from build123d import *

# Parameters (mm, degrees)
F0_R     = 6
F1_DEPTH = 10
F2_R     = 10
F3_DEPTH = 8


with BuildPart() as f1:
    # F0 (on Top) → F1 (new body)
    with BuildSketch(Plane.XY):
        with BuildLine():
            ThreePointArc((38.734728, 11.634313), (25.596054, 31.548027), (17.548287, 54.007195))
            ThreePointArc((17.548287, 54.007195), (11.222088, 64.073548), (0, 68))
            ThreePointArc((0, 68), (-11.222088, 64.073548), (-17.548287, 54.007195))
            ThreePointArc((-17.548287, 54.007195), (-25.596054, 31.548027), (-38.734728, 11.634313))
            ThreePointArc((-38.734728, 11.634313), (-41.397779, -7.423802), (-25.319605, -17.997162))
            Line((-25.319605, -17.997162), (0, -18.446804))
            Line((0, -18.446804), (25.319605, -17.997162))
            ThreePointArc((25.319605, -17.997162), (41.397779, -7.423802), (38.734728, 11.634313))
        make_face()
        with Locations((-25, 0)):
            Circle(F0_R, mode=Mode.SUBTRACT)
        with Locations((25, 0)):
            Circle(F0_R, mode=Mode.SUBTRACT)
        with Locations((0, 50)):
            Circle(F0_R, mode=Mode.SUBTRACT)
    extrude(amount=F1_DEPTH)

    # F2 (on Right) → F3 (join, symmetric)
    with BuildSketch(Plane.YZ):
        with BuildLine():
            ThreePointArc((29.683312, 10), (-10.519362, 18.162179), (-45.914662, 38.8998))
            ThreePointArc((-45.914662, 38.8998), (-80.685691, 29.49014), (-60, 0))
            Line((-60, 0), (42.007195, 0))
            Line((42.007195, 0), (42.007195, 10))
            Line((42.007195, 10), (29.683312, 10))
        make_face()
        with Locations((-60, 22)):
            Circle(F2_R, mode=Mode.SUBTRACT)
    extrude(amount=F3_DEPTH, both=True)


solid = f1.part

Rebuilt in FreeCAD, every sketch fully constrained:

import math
import FreeCAD as App
import Part
import Sketcher

V = App.Vector
Q = App.Units.Quantity

doc = App.newDocument("Part")
body = doc.addObject("PartDesign::Body", "Body")

sketch1 = body.newObject("Sketcher::SketchObject", "Sketch")
sketch1.AttachmentSupport = (doc.getObject("XY_Plane"), [""])
sketch1.MapMode = "FlatFace"
sketch1.addGeometry(Part.ArcOfCircle(Part.Circle(V(115.03878, 76.26939, 0), V(0, 0, 1), 100.000007), math.radians(-167.136921), math.radians(-139.732976)), False)
sketch1.addGeometry(Part.ArcOfCircle(Part.Circle(V(0.000001, 50.000002, 0), V(0, 0, 1), 17.999998), math.radians(12.863074), math.radians(90.000004)), False)
sketch1.addGeometry(Part.ArcOfCircle(Part.Circle(V(-0.000001, 50.000002, 0), V(0, 0, 1), 17.999998), math.radians(89.999996), math.radians(167.136926)), False)
sketch1.addGeometry(Part.ArcOfCircle(Part.Circle(V(-115.03878, 76.26939, 0), V(0, 0, 1), 100.000007), math.radians(-40.267024), math.radians(-12.863079)), False)
sketch1.addGeometry(Part.ArcOfCircle(Part.Circle(V(-25, 0, 0), V(0, 0, 1), 18), math.radians(139.732975), math.radians(268.982613)), False)
sketch1.addGeometry(Part.LineSegment(V(-25.319605, -17.997162, 0), V(0, -18.446804, 0)), False)
sketch1.addGeometry(Part.LineSegment(V(0, -18.446804, 0), V(25.319605, -17.997162, 0)), False)
sketch1.addGeometry(Part.ArcOfCircle(Part.Circle(V(25, 0, 0), V(0, 0, 1), 18), math.radians(-88.982613), math.radians(40.267025)), False)
sketch1.addGeometry(Part.Circle(V(-25, 0, 0), V(0, 0, 1), 6), False)
sketch1.addGeometry(Part.Circle(V(25, 0, 0), V(0, 0, 1), 6), False)
sketch1.addGeometry(Part.Circle(V(0, 50, 0), V(0, 0, 1), 6), False)
sketch1.addConstraint(Sketcher.Constraint("Coincident", 0, 1, 1, 1))
sketch1.addConstraint(Sketcher.Constraint("Coincident", 1, 2, 2, 1))
sketch1.addConstraint(Sketcher.Constraint("Coincident", 2, 2, 3, 2))
sketch1.addConstraint(Sketcher.Constraint("Coincident", 3, 1, 4, 1))
sketch1.addConstraint(Sketcher.Constraint("Coincident", 4, 2, 5, 1))
sketch1.addConstraint(Sketcher.Constraint("Coincident", 5, 2, 6, 1))
sketch1.addConstraint(Sketcher.Constraint("Coincident", 6, 2, 7, 1))
sketch1.addConstraint(Sketcher.Constraint("Coincident", 7, 2, 0, 2))
sketch1.addConstraint(Sketcher.Constraint("Coincident", 2, 3, 1, 3))
sketch1.addConstraint(Sketcher.Constraint("Coincident", 8, 3, 4, 3))
sketch1.addConstraint(Sketcher.Constraint("Coincident", 9, 3, 7, 3))
sketch1.addConstraint(Sketcher.Constraint("Coincident", 10, 3, 1, 3))
sketch1.addConstraint(Sketcher.Constraint("PointOnObject", 1, 3, -2))
sketch1.addConstraint(Sketcher.Constraint("PointOnObject", 4, 3, -1))
sketch1.addConstraint(Sketcher.Constraint("PointOnObject", 7, 3, -1))
sketch1.addConstraint(Sketcher.Constraint("PointOnObject", 1, 2, -2))
sketch1.addConstraint(Sketcher.Constraint("PointOnObject", 5, 2, -2))
sketch1.addConstraint(Sketcher.Constraint("Diameter", 8, Q("12 mm")))
sketch1.addConstraint(Sketcher.Constraint("Diameter", 9, Q("12 mm")))
sketch1.addConstraint(Sketcher.Constraint("Diameter", 10, Q("12 mm")))
sketch1.addConstraint(Sketcher.Constraint("Radius", 1, Q("17.999998 mm")))
sketch1.addConstraint(Sketcher.Constraint("Radius", 4, Q("18 mm")))
sketch1.addConstraint(Sketcher.Constraint("Radius", 7, Q("18 mm")))
sketch1.addConstraint(Sketcher.Constraint("DistanceY", -1, 1, 1, 3, Q("50.000002 mm")))
sketch1.addConstraint(Sketcher.Constraint("DistanceX", 4, 3, -1, 1, Q("25 mm")))
sketch1.addConstraint(Sketcher.Constraint("DistanceX", -1, 1, 7, 3, Q("25 mm")))
sketch1.addConstraint(Sketcher.Constraint("Radius", 0, Q("100.000007 mm")))
sketch1.addConstraint(Sketcher.Constraint("Radius", 3, Q("100.000007 mm")))
sketch1.addConstraint(Sketcher.Constraint("DistanceY", 6, 2, -1, 1, Q("17.997162 mm")))
sketch1.addConstraint(Sketcher.Constraint("DistanceX", 2, 3, 0, 1, Q("17.548288 mm")))
sketch1.addConstraint(Sketcher.Constraint("DistanceX", 2, 2, 1, 3, Q("17.548288 mm")))
sketch1.addConstraint(Sketcher.Constraint("DistanceX", 3, 1, 2, 2, Q("21.186441 mm")))
sketch1.addConstraint(Sketcher.Constraint("DistanceY", 5, 2, 4, 2, Q("0.449642 mm")))
sketch1.addConstraint(Sketcher.Constraint("DistanceX", 4, 2, 6, 2, Q("50.63921 mm")))
sketch1.addConstraint(Sketcher.Constraint("DistanceX", 0, 1, 7, 2, Q("21.186441 mm")))
pad1 = body.newObject("PartDesign::Pad", "Pad")
pad1.Profile = sketch1
pad1.Length = 10

sketch2 = body.newObject("Sketcher::SketchObject", "Sketch001")
sketch2.AttachmentSupport = (doc.getObject("YZ_Plane"), [""])
sketch2.MapMode = "FlatFace"
sketch2.addGeometry(Part.ArcOfCircle(Part.Circle(V(34, 135, 0), V(0, 0, 1), 125), math.radians(-130), math.radians(-92)), False)
sketch2.addGeometry(Part.ArcOfCircle(Part.Circle(V(-60, 22, 0), V(0, 0, 1), 22), math.radians(50), math.radians(270)), False)
sketch2.addGeometry(Part.LineSegment(V(-60, 0, 0), V(42, 0, 0)), False)
sketch2.addGeometry(Part.LineSegment(V(42, 0, 0), V(42, 10, 0)), False)
sketch2.addGeometry(Part.LineSegment(V(42, 10, 0), V(30, 10, 0)), False)
sketch2.addGeometry(Part.Circle(V(-60, 22, 0), V(0, 0, 1), 10), False)
sketch2.addConstraint(Sketcher.Constraint("Tangent", 0, 1, 1, 1))
sketch2.addConstraint(Sketcher.Constraint("Tangent", 1, 2, 2, 1))
sketch2.addConstraint(Sketcher.Constraint("Coincident", 2, 2, 3, 1))
sketch2.addConstraint(Sketcher.Constraint("Coincident", 3, 2, 4, 1))
sketch2.addConstraint(Sketcher.Constraint("Coincident", 4, 2, 0, 2))
sketch2.addConstraint(Sketcher.Constraint("Horizontal", 2))
sketch2.addConstraint(Sketcher.Constraint("Vertical", 3))
sketch2.addConstraint(Sketcher.Constraint("Horizontal", 4))
sketch2.addConstraint(Sketcher.Constraint("Coincident", 5, 3, 1, 3))
sketch2.addConstraint(Sketcher.Constraint("PointOnObject", 1, 2, -1))
sketch2.addConstraint(Sketcher.Constraint("Diameter", 5, Q("20 mm")))
sketch2.addConstraint(Sketcher.Constraint("Radius", 1, Q("22 mm")))
sketch2.addConstraint(Sketcher.Constraint("DistanceY", 3, 1, 3, 2, Q("10 mm")))
sketch2.addConstraint(Sketcher.Constraint("DistanceX", 1, 3, -1, 1, Q("60 mm")))
sketch2.addConstraint(Sketcher.Constraint("Radius", 0, Q("125.000012 mm")))
sketch2.addConstraint(Sketcher.Constraint("DistanceX", 2, 1, 2, 2, Q("102.007195 mm")))
sketch2.addConstraint(Sketcher.Constraint("DistanceX", 4, 2, 4, 1, Q("12.323883 mm")))
pad2 = body.newObject("PartDesign::Pad", "Pad001")
pad2.Profile = sketch2
pad2.Length = 16
pad2.Midplane = True

doc.recompute()
